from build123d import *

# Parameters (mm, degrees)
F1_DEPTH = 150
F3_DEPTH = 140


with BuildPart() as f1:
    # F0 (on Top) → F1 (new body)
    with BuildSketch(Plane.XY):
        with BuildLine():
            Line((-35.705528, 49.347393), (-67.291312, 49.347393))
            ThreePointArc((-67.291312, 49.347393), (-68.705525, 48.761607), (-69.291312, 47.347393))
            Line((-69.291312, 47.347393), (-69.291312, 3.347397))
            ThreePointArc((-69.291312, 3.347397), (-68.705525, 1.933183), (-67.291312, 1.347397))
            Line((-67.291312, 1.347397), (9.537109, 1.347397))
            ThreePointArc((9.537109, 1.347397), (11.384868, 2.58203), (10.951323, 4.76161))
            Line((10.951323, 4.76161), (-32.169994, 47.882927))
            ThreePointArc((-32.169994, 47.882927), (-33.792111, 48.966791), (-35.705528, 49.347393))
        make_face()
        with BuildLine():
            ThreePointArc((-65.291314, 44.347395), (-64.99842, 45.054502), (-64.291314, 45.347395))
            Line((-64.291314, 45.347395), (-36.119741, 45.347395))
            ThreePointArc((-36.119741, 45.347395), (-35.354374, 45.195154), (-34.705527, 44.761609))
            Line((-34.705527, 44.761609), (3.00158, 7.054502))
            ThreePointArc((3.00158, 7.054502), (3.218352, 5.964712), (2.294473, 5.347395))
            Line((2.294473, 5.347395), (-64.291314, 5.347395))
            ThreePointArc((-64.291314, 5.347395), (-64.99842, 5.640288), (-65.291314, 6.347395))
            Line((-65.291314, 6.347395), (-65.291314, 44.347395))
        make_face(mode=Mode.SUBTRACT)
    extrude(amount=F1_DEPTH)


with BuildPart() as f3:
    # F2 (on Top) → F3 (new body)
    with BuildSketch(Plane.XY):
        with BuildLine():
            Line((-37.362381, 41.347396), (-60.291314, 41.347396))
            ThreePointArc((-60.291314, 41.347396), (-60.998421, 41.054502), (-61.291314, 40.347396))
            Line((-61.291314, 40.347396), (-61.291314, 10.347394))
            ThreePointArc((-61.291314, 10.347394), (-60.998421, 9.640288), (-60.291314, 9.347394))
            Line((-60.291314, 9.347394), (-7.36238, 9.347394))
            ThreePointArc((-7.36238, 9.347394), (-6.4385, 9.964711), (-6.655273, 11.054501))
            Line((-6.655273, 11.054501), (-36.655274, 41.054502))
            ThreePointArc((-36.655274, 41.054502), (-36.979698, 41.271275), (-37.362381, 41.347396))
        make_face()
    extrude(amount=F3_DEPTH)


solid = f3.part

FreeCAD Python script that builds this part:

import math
import FreeCAD as App
import Part
import Sketcher

V = App.Vector
Q = App.Units.Quantity

doc = App.newDocument("Part")
params = doc.addObject("Spreadsheet::Sheet", "Params")
for row, (alias, value) in enumerate([
    ("sketch1_radius", "2 mm"),
    ("sketch1_radius2", "1.000001 mm"),
    ("sketch1_height", "38 mm"),
    ("pad1_length", "150 mm"),
    ("sketch2_radius", "1.000001 mm"),
    ("pad2_length", "140 mm"),
], start=1):
    params.set(f"A{row}", alias)
    params.set(f"B{row}", "=" + value)
    params.setAlias(f"B{row}", alias)

body = doc.addObject("PartDesign::Body", "Body")

# Sketch on XY plane
sketch1 = body.newObject("Sketcher::SketchObject", "Sketch")
sketch1.AttachmentSupport = (doc.getObject("XY_Plane"), [""])
sketch1.MapMode = "FlatFace"
sketch1.addGeometry([
    Part.LineSegment(V(-35.7, 49.3, 0), V(-67.3, 49.3, 0)),  # 0
    Part.ArcOfCircle(Part.Circle(V(-67.3, 47.3, 0), V(0, 0, 1), 2), math.radians(90), math.radians(180)),  # 1
    Part.LineSegment(V(-69.3, 47.3, 0), V(-69.3, 3.3, 0)),  # 2
    Part.ArcOfCircle(Part.Circle(V(-67.3, 3.3, 0), V(0, 0, 1), 2), math.radians(-180), math.radians(-90)),  # 3
    Part.LineSegment(V(-67.3, 1.3, 0), V(9.5, 1.3, 0)),  # 4
    Part.ArcOfCircle(Part.Circle(V(9.5, 3.3, 0), V(0, 0, 1), 2), math.radians(-90), math.radians(45)),  # 5
    Part.LineSegment(V(11, 4.8, 0), V(-32.2, 47.9, 0)),  # 6
    Part.ArcOfCircle(Part.Circle(V(-35.7, 44.3, 0), V(0, 0, 1), 5), math.radians(45), math.radians(90)),  # 7
    Part.LineSegment(V(-65.3, 6.3, 0), V(-65.3, 44.3, 0)),  # 8
    Part.ArcOfCircle(Part.Circle(V(-64.3, 44.3, 0), V(0, 0, 1), 1), math.radians(90), math.radians(180)),  # 9
    Part.LineSegment(V(-64.3, 45.3, 0), V(-36.1, 45.3, 0)),  # 10
    Part.ArcOfCircle(Part.Circle(V(-36.1, 43.3, 0), V(0, 0, 1), 2), math.radians(45), math.radians(90)),  # 11
    Part.LineSegment(V(-34.7, 44.8, 0), V(3, 7.1, 0)),  # 12
    Part.ArcOfCircle(Part.Circle(V(2.3, 6.3, 0), V(0, 0, 1), 1), math.radians(-90), math.radians(45)),  # 13
    Part.LineSegment(V(2.3, 5.3, 0), V(-64.3, 5.3, 0)),  # 14
    Part.ArcOfCircle(Part.Circle(V(-64.3, 6.3, 0), V(0, 0, 1), 1), math.radians(-180), math.radians(-90)),  # 15
], False)
sketch1.addConstraint([
    Sketcher.Constraint("Tangent", 0, 2, 1, 1),
    Sketcher.Constraint("Tangent", 1, 2, 2, 1),
    Sketcher.Constraint("Tangent", 2, 2, 3, 1),
    Sketcher.Constraint("Tangent", 3, 2, 4, 1),
    Sketcher.Constraint("Tangent", 4, 2, 5, 1),
    Sketcher.Constraint("Tangent", 5, 2, 6, 1),
    Sketcher.Constraint("Tangent", 6, 2, 7, 1),
    Sketcher.Constraint("Tangent", 7, 2, 0, 1),
    Sketcher.Constraint("Tangent", 8, 2, 9, 2),
    Sketcher.Constraint("Tangent", 9, 1, 10, 1),
    Sketcher.Constraint("Tangent", 10, 2, 11, 2),
    Sketcher.Constraint("Tangent", 11, 1, 12, 1),
    Sketcher.Constraint("Tangent", 12, 2, 13, 2),
    Sketcher.Constraint("Tangent", 13, 1, 14, 1),
    Sketcher.Constraint("Tangent", 14, 2, 15, 2),
    Sketcher.Constraint("Tangent", 15, 1, 8, 1),
    Sketcher.Constraint("Horizontal", 0),
    Sketcher.Constraint("Vertical", 2),
    Sketcher.Constraint("Horizontal", 4),
    Sketcher.Constraint("Vertical", 8),
    Sketcher.Constraint("Horizontal", 10),
    Sketcher.Constraint("Horizontal", 14),
    Sketcher.Constraint("Equal", 1, 3),
    Sketcher.Constraint("Equal", 3, 5),
    Sketcher.Constraint("Equal", 9, 13),
    Sketcher.Constraint("Equal", 13, 15),
    Sketcher.Constraint("Parallel", 6, 12),
    Sketcher.Constraint("Horizontal", 7, 3, 9, 3),
    Sketcher.Constraint("Radius", 1, Q("2 mm")),
    Sketcher.Constraint("Radius", 9, Q("1.000001 mm")),
    Sketcher.Constraint("DistanceY", 8, 1, 8, 2, Q("38 mm")),
    Sketcher.Constraint("Angle", 6, Q("135 deg")),
    Sketcher.Constraint("DistanceY", 5, 3, 7, 3, Q("40.999998 mm")),
    Sketcher.Constraint("DistanceX", 1, 3, 9, 3, Q("2.999999 mm")),
    Sketcher.Constraint("DistanceY", 9, 3, 1, 3, Q("2.999999 mm")),
    Sketcher.Constraint("DistanceY", 11, 3, 1, 3, Q("4.000002 mm")),
    Sketcher.Constraint("DistanceX", 7, 3, 13, 3, Q("37.999999 mm")),
    Sketcher.Constraint("DistanceX", 4, 1, 4, 2, Q("76.828421 mm")),
    Sketcher.Constraint("DistanceX", 1, 3, -1, 1, Q("67.291312 mm")),
    Sketcher.Constraint("DistanceY", -1, 1, 11, 3, Q("43.347391 mm")),
])
sketch1.setExpression("Constraints[28]", "Params.sketch1_radius")
sketch1.setExpression("Constraints[29]", "Params.sketch1_radius2")
sketch1.setExpression("Constraints[30]", "Params.sketch1_height")
pad1 = body.newObject("PartDesign::Pad", "Pad")
pad1.Profile = sketch1
pad1.setExpression("Length", "Params.pad1_length")
body2 = doc.addObject("PartDesign::Body", "Body001")

# Sketch on XY plane
sketch2 = body2.newObject("Sketcher::SketchObject", "Sketch001")
sketch2.AttachmentSupport = (doc.getObject("XY_Plane001"), [""])
sketch2.MapMode = "FlatFace"
sketch2.addGeometry([
    Part.LineSegment(V(-37.4, 41.3, 0), V(-60.3, 41.3, 0)),  # 0
    Part.ArcOfCircle(Part.Circle(V(-60.3, 40.3, 0), V(0, 0, 1), 1), math.radians(90), math.radians(180)),  # 1
    Part.LineSegment(V(-61.3, 40.3, 0), V(-61.3, 10.3, 0)),  # 2
    Part.ArcOfCircle(Part.Circle(V(-60.3, 10.3, 0), V(0, 0, 1), 1), math.radians(-180), math.radians(-90)),  # 3
    Part.LineSegment(V(-60.3, 9.3, 0), V(-7.4, 9.3, 0)),  # 4
    Part.ArcOfCircle(Part.Circle(V(-7.4, 10.3, 0), V(0, 0, 1), 1), math.radians(-90), math.radians(45)),  # 5
    Part.LineSegment(V(-6.7, 11.1, 0), V(-36.7, 41.1, 0)),  # 6
    Part.ArcOfCircle(Part.Circle(V(-37.4, 40.3, 0), V(0, 0, 1), 1), math.radians(45), math.radians(90)),  # 7
], False)
sketch2.addConstraint([
    Sketcher.Constraint("Tangent", 0, 2, 1, 1),
    Sketcher.Constraint("Tangent", 1, 2, 2, 1),
    Sketcher.Constraint("Tangent", 2, 2, 3, 1),
    Sketcher.Constraint("Tangent", 3, 2, 4, 1),
    Sketcher.Constraint("Tangent", 4, 2, 5, 1),
    Sketcher.Constraint("Tangent", 5, 2, 6, 1),
    Sketcher.Constraint("Tangent", 6, 2, 7, 1),
    Sketcher.Constraint("Coincident", 7, 2, 0, 1),
    Sketcher.Constraint("Horizontal", 0),
    Sketcher.Constraint("Vertical", 2),
    Sketcher.Constraint("Horizontal", 4),
    Sketcher.Constraint("Equal", 1, 3),
    Sketcher.Constraint("Equal", 3, 5),
    Sketcher.Constraint("Radius", 1, Q("1.000001 mm")),
    Sketcher.Constraint("Angle", 6, Q("135 deg")),
    Sketcher.Constraint("DistanceY", 3, 3, 1, 3, Q("30 mm")),
    Sketcher.Constraint("Radius", 7, Q("1.000005 mm")),
    Sketcher.Constraint("DistanceY", -1, 1, 5, 2, Q("11.054501 mm")),
    Sketcher.Constraint("DistanceX", 0, 2, 0, 1, Q("22.928933 mm")),
    Sketcher.Constraint("DistanceX", 4, 1, 4, 2, Q("52.928934 mm")),
    Sketcher.Constraint("DistanceX", 5, 3, -1, 1, Q("7.36238 mm")),
])
sketch2.setExpression("Constraints[13]", "Params.sketch2_radius")
pad2 = body2.newObject("PartDesign::Pad", "Pad001")
pad2.Profile = sketch2
pad2.setExpression("Length", "Params.pad2_length")
body.Visibility = False

doc.recompute()
